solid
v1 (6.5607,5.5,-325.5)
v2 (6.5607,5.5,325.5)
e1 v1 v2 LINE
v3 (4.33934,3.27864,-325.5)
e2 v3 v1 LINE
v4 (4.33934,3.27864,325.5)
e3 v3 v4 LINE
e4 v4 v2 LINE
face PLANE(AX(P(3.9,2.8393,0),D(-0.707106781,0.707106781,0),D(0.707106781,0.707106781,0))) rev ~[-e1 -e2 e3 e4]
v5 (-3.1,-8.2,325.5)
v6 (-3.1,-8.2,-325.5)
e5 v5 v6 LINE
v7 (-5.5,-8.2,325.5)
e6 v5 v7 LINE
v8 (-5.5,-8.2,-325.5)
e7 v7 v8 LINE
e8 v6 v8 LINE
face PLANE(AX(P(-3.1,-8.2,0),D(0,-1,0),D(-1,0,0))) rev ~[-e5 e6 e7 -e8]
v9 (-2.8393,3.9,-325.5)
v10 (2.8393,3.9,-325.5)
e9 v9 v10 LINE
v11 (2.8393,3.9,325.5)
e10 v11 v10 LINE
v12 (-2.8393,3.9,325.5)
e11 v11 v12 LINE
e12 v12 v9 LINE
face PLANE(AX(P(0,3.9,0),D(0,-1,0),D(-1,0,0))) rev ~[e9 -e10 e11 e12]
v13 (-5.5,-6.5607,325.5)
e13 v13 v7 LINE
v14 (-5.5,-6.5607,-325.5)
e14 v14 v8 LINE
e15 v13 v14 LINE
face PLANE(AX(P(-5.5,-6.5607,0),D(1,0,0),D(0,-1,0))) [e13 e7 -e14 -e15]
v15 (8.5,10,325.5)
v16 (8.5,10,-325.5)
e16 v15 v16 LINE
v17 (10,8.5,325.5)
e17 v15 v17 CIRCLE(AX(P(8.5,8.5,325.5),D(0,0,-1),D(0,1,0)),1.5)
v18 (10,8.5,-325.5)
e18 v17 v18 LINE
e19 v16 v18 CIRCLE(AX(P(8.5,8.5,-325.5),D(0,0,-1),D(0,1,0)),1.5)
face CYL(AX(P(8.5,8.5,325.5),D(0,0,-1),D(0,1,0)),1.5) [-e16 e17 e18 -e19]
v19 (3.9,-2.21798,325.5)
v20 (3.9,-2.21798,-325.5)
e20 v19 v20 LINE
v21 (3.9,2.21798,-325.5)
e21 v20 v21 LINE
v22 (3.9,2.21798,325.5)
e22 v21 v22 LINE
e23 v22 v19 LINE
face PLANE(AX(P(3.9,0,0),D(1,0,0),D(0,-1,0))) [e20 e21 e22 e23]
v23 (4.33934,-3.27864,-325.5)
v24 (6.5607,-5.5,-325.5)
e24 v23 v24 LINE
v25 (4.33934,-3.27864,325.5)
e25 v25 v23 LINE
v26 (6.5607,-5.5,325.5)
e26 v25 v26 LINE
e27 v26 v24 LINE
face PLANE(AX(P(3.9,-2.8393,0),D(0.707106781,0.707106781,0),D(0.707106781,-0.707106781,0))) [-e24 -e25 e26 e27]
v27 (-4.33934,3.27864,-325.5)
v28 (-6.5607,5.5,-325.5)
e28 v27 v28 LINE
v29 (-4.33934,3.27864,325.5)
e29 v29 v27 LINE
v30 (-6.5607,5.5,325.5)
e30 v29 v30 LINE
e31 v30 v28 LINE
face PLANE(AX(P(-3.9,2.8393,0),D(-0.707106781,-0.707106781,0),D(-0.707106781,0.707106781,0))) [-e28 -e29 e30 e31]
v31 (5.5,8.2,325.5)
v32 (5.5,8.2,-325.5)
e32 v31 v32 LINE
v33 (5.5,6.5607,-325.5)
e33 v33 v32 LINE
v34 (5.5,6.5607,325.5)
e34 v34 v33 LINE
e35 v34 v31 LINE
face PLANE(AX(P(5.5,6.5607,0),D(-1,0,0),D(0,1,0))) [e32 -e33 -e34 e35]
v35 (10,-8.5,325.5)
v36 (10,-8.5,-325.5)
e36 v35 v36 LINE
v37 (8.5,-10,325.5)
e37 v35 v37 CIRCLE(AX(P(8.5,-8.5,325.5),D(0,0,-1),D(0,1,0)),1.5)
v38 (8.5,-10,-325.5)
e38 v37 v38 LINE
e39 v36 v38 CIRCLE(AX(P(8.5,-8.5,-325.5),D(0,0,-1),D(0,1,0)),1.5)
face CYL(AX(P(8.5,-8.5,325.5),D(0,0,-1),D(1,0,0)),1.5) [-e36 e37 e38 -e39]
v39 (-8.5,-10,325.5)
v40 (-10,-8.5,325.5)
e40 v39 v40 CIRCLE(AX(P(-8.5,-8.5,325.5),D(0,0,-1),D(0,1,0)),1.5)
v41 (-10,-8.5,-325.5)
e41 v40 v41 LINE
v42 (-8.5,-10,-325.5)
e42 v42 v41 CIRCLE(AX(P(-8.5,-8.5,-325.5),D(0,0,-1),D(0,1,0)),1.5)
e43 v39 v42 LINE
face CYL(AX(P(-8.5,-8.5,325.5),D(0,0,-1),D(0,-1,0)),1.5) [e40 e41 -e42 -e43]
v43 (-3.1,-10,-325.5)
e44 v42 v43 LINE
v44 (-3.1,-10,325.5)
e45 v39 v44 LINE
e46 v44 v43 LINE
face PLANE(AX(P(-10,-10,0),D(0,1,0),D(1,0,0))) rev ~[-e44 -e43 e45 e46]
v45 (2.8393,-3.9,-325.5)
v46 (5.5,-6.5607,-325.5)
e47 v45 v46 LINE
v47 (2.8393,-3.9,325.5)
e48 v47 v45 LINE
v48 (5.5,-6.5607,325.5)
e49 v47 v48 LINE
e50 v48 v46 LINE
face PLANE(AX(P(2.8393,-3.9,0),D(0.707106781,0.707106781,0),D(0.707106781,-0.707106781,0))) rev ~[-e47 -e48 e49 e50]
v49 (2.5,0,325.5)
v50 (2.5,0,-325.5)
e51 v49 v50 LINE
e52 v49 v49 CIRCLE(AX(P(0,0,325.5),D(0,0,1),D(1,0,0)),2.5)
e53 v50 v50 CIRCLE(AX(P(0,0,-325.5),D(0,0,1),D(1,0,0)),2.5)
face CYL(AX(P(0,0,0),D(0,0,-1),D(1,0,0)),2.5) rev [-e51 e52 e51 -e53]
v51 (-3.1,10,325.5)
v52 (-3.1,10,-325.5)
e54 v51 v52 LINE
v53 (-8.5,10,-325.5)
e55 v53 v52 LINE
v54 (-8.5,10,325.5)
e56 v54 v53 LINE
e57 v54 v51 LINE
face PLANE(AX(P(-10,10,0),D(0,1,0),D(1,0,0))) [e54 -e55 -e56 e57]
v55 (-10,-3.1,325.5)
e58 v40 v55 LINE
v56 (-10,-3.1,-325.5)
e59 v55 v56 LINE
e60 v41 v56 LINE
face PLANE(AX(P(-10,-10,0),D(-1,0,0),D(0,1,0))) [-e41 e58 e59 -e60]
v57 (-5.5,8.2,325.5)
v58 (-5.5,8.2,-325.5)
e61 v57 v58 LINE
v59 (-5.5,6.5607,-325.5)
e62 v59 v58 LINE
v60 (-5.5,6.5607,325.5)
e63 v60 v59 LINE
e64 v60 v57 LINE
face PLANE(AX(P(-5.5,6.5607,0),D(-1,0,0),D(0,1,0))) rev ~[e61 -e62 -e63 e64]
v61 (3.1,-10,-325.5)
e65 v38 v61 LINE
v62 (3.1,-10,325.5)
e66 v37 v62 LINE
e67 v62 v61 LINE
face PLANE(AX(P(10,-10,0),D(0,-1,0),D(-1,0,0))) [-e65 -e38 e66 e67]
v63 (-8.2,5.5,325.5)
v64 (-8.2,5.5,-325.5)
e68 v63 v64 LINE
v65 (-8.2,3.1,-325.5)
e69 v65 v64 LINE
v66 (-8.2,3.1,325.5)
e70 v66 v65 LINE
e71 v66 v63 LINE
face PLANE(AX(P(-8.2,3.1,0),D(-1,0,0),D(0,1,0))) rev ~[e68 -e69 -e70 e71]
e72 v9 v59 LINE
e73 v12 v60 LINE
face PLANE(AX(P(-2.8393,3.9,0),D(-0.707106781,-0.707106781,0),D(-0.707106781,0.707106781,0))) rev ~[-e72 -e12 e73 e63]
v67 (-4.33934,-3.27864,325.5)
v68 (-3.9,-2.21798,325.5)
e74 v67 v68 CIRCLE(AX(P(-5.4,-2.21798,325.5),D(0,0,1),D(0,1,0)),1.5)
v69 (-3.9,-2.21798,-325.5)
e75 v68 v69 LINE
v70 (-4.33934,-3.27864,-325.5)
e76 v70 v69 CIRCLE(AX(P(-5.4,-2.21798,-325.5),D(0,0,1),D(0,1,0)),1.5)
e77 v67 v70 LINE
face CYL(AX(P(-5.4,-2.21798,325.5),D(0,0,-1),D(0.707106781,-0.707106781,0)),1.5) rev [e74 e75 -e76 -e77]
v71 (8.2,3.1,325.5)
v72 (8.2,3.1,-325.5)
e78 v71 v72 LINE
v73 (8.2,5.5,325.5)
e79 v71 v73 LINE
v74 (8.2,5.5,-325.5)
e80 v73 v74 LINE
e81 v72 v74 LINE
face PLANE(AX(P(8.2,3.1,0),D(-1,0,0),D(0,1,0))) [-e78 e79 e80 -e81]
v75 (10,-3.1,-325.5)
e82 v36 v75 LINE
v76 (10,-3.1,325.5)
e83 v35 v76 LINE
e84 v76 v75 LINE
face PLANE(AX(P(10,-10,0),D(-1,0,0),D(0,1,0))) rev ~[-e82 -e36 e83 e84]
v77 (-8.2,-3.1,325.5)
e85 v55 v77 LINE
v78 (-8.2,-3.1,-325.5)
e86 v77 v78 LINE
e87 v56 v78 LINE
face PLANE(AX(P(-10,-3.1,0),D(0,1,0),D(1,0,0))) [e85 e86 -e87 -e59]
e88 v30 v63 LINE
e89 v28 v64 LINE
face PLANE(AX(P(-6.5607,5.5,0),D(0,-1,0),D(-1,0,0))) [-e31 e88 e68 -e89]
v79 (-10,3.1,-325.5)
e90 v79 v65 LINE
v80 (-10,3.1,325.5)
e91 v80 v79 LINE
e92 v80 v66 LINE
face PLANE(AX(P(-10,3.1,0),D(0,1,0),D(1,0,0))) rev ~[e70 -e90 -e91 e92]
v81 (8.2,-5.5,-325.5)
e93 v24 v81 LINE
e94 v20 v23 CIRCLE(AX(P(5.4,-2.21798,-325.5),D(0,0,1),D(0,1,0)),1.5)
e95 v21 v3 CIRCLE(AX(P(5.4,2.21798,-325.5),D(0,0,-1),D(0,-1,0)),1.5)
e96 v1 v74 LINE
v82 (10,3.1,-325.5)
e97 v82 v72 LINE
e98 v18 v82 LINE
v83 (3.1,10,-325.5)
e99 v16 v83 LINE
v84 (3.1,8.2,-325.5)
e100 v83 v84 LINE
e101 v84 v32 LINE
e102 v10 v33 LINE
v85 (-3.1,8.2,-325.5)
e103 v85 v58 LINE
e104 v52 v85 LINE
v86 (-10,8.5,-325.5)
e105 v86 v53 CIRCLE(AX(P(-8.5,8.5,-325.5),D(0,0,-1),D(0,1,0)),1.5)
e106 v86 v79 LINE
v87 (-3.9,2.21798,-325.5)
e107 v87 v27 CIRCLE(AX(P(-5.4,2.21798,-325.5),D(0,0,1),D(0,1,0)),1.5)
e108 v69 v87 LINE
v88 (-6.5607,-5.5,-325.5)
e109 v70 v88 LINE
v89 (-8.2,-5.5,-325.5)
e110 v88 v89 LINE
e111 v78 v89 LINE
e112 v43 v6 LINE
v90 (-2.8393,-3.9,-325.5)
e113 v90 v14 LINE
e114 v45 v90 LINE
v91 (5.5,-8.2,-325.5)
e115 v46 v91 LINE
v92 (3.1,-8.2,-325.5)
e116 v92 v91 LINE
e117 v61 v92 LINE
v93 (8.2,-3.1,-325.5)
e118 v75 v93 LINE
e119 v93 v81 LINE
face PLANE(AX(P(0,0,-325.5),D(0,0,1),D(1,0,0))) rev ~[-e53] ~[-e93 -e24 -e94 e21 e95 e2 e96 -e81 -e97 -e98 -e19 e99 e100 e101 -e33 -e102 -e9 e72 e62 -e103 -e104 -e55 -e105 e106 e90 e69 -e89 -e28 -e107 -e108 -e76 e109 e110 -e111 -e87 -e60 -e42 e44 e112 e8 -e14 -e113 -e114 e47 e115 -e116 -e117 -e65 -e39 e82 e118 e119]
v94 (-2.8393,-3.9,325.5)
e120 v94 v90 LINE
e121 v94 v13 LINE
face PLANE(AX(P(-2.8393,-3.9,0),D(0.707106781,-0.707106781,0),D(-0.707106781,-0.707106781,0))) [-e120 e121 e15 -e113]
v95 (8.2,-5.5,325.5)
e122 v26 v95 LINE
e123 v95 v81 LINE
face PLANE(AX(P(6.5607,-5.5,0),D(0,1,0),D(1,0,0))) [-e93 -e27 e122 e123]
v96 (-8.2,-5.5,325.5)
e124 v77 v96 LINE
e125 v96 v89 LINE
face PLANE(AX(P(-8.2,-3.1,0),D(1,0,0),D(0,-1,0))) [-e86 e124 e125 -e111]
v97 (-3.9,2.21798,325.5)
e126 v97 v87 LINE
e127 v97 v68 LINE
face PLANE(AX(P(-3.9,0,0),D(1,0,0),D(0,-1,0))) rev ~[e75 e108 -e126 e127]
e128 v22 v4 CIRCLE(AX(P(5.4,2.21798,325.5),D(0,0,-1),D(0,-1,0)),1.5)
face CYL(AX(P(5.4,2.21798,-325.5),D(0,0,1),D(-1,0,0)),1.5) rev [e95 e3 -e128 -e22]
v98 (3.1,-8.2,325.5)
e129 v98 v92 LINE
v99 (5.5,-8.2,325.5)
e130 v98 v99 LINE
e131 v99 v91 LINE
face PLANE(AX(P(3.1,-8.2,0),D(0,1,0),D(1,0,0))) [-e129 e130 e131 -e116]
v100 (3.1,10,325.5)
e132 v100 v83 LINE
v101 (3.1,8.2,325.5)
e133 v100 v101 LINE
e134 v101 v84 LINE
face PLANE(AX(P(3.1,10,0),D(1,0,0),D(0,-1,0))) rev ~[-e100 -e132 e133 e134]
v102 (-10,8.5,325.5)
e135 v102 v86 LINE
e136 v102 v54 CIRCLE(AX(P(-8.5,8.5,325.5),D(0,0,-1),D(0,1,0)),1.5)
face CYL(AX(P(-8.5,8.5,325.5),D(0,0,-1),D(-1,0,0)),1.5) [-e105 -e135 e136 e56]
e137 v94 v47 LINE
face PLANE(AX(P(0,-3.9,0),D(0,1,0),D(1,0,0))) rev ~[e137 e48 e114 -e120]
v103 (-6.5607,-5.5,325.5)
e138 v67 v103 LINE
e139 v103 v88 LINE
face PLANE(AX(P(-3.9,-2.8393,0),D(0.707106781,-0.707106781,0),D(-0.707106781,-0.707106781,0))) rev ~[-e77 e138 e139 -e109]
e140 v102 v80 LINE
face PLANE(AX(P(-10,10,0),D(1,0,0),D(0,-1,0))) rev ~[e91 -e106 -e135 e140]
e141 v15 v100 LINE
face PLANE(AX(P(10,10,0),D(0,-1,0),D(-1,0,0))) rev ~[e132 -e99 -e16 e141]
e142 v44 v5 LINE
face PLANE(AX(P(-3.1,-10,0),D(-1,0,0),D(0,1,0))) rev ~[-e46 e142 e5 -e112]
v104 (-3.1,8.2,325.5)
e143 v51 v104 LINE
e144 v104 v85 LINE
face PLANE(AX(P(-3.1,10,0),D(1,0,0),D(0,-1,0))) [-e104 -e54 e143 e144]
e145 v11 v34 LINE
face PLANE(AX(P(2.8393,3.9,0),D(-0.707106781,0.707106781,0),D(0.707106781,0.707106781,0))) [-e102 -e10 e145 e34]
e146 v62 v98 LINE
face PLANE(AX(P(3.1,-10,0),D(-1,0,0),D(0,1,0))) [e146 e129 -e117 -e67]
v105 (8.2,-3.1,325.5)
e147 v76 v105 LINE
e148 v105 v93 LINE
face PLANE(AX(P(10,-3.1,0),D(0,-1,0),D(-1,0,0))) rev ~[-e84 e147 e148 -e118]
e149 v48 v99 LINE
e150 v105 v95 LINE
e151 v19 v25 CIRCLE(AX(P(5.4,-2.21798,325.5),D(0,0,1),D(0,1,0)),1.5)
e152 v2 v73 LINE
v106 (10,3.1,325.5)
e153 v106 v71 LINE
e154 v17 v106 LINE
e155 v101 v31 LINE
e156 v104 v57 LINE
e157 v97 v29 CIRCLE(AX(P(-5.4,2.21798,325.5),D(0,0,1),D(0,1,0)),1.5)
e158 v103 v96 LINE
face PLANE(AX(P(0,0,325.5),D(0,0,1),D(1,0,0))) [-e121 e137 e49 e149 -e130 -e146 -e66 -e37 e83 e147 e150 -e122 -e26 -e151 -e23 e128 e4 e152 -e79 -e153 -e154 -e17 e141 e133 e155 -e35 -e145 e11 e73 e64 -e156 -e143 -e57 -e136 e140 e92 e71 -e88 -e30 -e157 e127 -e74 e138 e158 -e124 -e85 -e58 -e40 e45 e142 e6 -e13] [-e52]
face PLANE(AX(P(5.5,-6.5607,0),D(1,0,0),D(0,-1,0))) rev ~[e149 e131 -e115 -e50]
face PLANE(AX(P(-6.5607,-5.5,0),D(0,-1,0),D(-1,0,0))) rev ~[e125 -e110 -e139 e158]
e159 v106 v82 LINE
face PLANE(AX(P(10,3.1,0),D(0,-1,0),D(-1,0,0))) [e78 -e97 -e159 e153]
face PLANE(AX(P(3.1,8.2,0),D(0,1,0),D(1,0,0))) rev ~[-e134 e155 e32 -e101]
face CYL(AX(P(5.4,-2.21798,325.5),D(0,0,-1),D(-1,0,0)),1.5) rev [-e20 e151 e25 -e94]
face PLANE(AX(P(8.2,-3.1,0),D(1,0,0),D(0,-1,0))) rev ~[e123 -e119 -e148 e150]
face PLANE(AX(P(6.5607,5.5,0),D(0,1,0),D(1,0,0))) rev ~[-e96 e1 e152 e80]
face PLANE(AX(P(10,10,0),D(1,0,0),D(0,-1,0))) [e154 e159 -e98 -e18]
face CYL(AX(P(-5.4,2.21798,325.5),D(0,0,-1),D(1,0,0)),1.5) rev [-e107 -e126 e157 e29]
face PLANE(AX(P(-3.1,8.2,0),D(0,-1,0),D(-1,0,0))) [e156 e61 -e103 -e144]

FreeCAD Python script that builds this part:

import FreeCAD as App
import Part
import Sketcher

V = App.Vector


def edges_at(feature, points):
    """Names of the edges that pass closest to the given points."""
    edges = feature.Shape.Edges
    near = lambda p: min(range(len(edges)), key=lambda i: edges[i].distToShape(Part.Vertex(*p))[0])
    return sorted({f"Edge{near(p) + 1}" for p in points})


def add_polygon(sketch, points):
    """Adds a closed chain of lines whose ends are joined by coincident constraints."""
    first, n = sketch.GeometryCount, len(points)
    for a, b in zip(points, points[1:] + points[:1]):
        sketch.addGeometry(Part.LineSegment(App.Vector(*a, 0), App.Vector(*b, 0)), False)
    for i in range(n):
        sketch.addConstraint(Sketcher.Constraint("Coincident", first + i, 2, first + (i + 1) % n, 1))

doc = App.newDocument("Part")
params = doc.addObject("Spreadsheet::Sheet", "Params")
for row, (alias, value) in enumerate([
    ("sketch1_diameter", "5 mm"),
    ("sketch1_width", "1.8 mm"),
    ("sketch1_width2", "6.9 mm"),
    ("pad1_length", "651 mm"),
    ("fillet_radius", "1.5 mm"),
], start=1):
    params.set(f"A{row}", alias)
    params.set(f"B{row}", "=" + value)
    params.setAlias(f"B{row}", alias)

body = doc.addObject("PartDesign::Body", "Body")

sketch1 = doc.addObject("Sketcher::SketchObject", "Sketch")
body.addObject(sketch1)
sketch1.AttachmentSupport = (doc.XY_Plane, [""])
sketch1.MapMode = "FlatFace"
add_polygon(sketch1, [(3.9, -2.8), (3.9, 2.8), (6.6, 5.5), (8.2, 5.5), (8.2, 3.1), (10, 3.1), (10, 10), (3.1, 10), (3.1, 8.2), (5.5, 8.2), (5.5, 6.6), (2.8, 3.9), (-2.8, 3.9), (-5.5, 6.6), (-5.5, 8.2), (-3.1, 8.2), (-3.1, 10), (-10, 10), (-10, 3.1), (-8.2, 3.1), (-8.2, 5.5), (-6.6, 5.5), (-3.9, 2.8), (-3.9, -2.8), (-6.6, -5.5), (-8.2, -5.5), (-8.2, -3.1), (-10, -3.1), (-10, -10), (-3.1, -10), (-3.1, -8.2), (-5.5, -8.2), (-5.5, -6.6), (-2.8, -3.9), (2.8, -3.9), (5.5, -6.6), (5.5, -8.2), (3.1, -8.2), (3.1, -10), (10, -10), (10, -3.1), (8.2, -3.1), (8.2, -5.5), (6.6, -5.5)])
sketch1.addGeometry(Part.Circle(V(0, 0, 0), V(0, 0, 1), 2.5), False)
sketch1.addConstraint([
    Sketcher.Constraint("Vertical", 0),
    Sketcher.Constraint("Horizontal", 2),
    Sketcher.Constraint("Vertical", 3),
    Sketcher.Constraint("Horizontal", 4),
    Sketcher.Constraint("Vertical", 5),
    Sketcher.Constraint("Horizontal", 6),
    Sketcher.Constraint("Vertical", 7),
    Sketcher.Constraint("Horizontal", 8),
    Sketcher.Constraint("Vertical", 9),
    Sketcher.Constraint("Horizontal", 11),
    Sketcher.Constraint("Vertical", 13),
    Sketcher.Constraint("Horizontal", 14),
    Sketcher.Constraint("Vertical", 15),
    Sketcher.Constraint("Horizontal", 16),
    Sketcher.Constraint("Vertical", 17),
    Sketcher.Constraint("Horizontal", 18),
    Sketcher.Constraint("Vertical", 19),
    Sketcher.Constraint("Horizontal", 20),
    Sketcher.Constraint("Vertical", 22),
    Sketcher.Constraint("Horizontal", 24),
    Sketcher.Constraint("Vertical", 25),
    Sketcher.Constraint("Horizontal", 26),
    Sketcher.Constraint("Vertical", 27),
    Sketcher.Constraint("Horizontal", 28),
    Sketcher.Constraint("Vertical", 29),
    Sketcher.Constraint("Horizontal", 30),
    Sketcher.Constraint("Vertical", 31),
    Sketcher.Constraint("Horizontal", 33),
    Sketcher.Constraint("Vertical", 35),
    Sketcher.Constraint("Horizontal", 36),
    Sketcher.Constraint("Vertical", 37),
    Sketcher.Constraint("Horizontal", 38),
    Sketcher.Constraint("Vertical", 39),
    Sketcher.Constraint("Horizontal", 40),
    Sketcher.Constraint("Vertical", 41),
    Sketcher.Constraint("Horizontal", 42),
    Sketcher.Constraint("Coincident", 44, 3, -1, 1),
    Sketcher.Constraint("Symmetric", 0, 2, 22, 2, -1, 1),
    Sketcher.Constraint("Symmetric", 1, 2, 23, 2, -1, 1),
    Sketcher.Constraint("Symmetric", 3, 2, 25, 2, -1, 1),
    Sketcher.Constraint("Symmetric", 5, 2, 27, 2, -1, 1),
    Sketcher.Constraint("Symmetric", 7, 2, 29, 2, -1, 1),
    Sketcher.Constraint("Symmetric", 9, 2, 31, 2, -1, 1),
    Sketcher.Constraint("Symmetric", 10, 2, 32, 2, -1, 1),
    Sketcher.Constraint("Symmetric", 12, 2, 34, 2, -1, 1),
    Sketcher.Constraint("Symmetric", 14, 2, 36, 2, -1, 1),
    Sketcher.Constraint("Symmetric", 16, 2, 38, 2, -1, 1),
    Sketcher.Constraint("Symmetric", 18, 2, 40, 2, -1, 1),
    Sketcher.Constraint("Symmetric", 20, 2, 42, 2, -1, 1),
    Sketcher.Constraint("Symmetric", 9, 2, 12, 2, -2),
    Sketcher.Constraint("Symmetric", 7, 2, 14, 2, -2),
    Sketcher.Constraint("Symmetric", 5, 2, 16, 2, -2),
    Sketcher.Constraint("Symmetric", 3, 2, 18, 2, -2),
    Sketcher.Constraint("Symmetric", 1, 2, 20, 2, -2),
    Sketcher.Constraint("Parallel", 1, 10),
    Sketcher.Constraint("Perpendicular", 10, 12),
    Sketcher.Constraint("Parallel", 12, 21),
    Sketcher.Constraint("Perpendicular", 32, 34),
    Sketcher.Constraint("Parallel", 34, 43),
    Sketcher.Constraint("Horizontal", 0, 2, 21, 2),
    Sketcher.Constraint("Equal", 33, 0),
    Sketcher.Constraint("Equal", 36, 3),
    Sketcher.Constraint("Equal", 38, 5),
    Sketcher.Constraint("Equal", 40, 7),
    Sketcher.Constraint("Equal", 42, 9),
    Sketcher.Constraint("Equal", 1, 10),
    Sketcher.Constraint("Diameter", 44, 5.0),
    Sketcher.Constraint("DistanceX", 4, 1, 4, 2, 1.8),
    Sketcher.Constraint("DistanceX", 6, 2, 6, 1, 6.9),
    Sketcher.Constraint("DistanceX", 0, 2, 4, 2, 6.1),
    Sketcher.Constraint("DistanceY", 2, 2, 5, 2, 4.5),
    Sketcher.Constraint("DistanceX", -1, 1, 4, 2, 10.0),
    Sketcher.Constraint("DistanceX", 2, 1, 2, 2, 1.6393),
])
sketch1.setExpression("Constraints[110]", "Params.sketch1_diameter")
sketch1.setExpression("Constraints[111]", "Params.sketch1_width")
sketch1.setExpression("Constraints[112]", "Params.sketch1_width2")
pad1 = doc.addObject("PartDesign::Pad", "Pad")
body.addObject(pad1)
pad1.Profile = sketch1
pad1.setExpression("Length", "Params.pad1_length")
pad1.Midplane = True
doc.recompute()

fillet = doc.addObject("PartDesign::Fillet", "Fillet")
body.addObject(fillet)
fillet.Base = (pad1, edges_at(pad1, [
    (10, 10, 0),
    (-10, 10, 0),
    (10, -10, 0),
    (-10, -10, 0),
    (3.9, 2.839, 0),
    (3.9, -2.839, 0),
    (-3.9, 2.839, 0),
    (-3.9, -2.839, 0),
]))
fillet.setExpression("Radius", "Params.fillet_radius")

doc.recompute()
